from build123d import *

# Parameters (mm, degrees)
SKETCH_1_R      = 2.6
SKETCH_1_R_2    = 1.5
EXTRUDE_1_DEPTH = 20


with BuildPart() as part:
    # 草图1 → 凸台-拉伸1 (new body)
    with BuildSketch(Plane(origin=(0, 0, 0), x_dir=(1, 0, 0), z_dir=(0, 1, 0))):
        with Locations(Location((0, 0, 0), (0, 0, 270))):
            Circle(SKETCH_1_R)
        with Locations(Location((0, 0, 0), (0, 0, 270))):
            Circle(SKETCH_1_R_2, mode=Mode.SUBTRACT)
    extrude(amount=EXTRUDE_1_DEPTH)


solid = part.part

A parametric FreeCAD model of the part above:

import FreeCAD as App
import Part
import Sketcher

doc = App.newDocument("Part")
body = doc.addObject("PartDesign::Body", "Body")

# Sketch on XZ plane
sketch1 = body.newObject("Sketcher::SketchObject", "Sketch")
sketch1.AttachmentSupport = (doc.getObject("XZ_Plane"), [""])
sketch1.MapMode = "FlatFace"
sketch1.addGeometry([
    Part.Circle(App.Vector(0, 0, 0), App.Vector(0, 0, 1), 2.6),
    Part.Circle(App.Vector(0, 0, 0), App.Vector(0, 0, 1), 1.5),
], False)
sketch1.addConstraint([
    Sketcher.Constraint("Coincident", 0, 3, -1, 1),
    Sketcher.Constraint("Coincident", 1, 3, -1, 1),
    Sketcher.Constraint("Diameter", 1, 3.0),
    Sketcher.Constraint("Diameter", 0, 5.2),
])
pad1 = body.newObject("PartDesign::Pad", "Pad")
pad1.Profile = sketch1
pad1.Length = 20
pad1.Reversed = True

doc.recompute()
